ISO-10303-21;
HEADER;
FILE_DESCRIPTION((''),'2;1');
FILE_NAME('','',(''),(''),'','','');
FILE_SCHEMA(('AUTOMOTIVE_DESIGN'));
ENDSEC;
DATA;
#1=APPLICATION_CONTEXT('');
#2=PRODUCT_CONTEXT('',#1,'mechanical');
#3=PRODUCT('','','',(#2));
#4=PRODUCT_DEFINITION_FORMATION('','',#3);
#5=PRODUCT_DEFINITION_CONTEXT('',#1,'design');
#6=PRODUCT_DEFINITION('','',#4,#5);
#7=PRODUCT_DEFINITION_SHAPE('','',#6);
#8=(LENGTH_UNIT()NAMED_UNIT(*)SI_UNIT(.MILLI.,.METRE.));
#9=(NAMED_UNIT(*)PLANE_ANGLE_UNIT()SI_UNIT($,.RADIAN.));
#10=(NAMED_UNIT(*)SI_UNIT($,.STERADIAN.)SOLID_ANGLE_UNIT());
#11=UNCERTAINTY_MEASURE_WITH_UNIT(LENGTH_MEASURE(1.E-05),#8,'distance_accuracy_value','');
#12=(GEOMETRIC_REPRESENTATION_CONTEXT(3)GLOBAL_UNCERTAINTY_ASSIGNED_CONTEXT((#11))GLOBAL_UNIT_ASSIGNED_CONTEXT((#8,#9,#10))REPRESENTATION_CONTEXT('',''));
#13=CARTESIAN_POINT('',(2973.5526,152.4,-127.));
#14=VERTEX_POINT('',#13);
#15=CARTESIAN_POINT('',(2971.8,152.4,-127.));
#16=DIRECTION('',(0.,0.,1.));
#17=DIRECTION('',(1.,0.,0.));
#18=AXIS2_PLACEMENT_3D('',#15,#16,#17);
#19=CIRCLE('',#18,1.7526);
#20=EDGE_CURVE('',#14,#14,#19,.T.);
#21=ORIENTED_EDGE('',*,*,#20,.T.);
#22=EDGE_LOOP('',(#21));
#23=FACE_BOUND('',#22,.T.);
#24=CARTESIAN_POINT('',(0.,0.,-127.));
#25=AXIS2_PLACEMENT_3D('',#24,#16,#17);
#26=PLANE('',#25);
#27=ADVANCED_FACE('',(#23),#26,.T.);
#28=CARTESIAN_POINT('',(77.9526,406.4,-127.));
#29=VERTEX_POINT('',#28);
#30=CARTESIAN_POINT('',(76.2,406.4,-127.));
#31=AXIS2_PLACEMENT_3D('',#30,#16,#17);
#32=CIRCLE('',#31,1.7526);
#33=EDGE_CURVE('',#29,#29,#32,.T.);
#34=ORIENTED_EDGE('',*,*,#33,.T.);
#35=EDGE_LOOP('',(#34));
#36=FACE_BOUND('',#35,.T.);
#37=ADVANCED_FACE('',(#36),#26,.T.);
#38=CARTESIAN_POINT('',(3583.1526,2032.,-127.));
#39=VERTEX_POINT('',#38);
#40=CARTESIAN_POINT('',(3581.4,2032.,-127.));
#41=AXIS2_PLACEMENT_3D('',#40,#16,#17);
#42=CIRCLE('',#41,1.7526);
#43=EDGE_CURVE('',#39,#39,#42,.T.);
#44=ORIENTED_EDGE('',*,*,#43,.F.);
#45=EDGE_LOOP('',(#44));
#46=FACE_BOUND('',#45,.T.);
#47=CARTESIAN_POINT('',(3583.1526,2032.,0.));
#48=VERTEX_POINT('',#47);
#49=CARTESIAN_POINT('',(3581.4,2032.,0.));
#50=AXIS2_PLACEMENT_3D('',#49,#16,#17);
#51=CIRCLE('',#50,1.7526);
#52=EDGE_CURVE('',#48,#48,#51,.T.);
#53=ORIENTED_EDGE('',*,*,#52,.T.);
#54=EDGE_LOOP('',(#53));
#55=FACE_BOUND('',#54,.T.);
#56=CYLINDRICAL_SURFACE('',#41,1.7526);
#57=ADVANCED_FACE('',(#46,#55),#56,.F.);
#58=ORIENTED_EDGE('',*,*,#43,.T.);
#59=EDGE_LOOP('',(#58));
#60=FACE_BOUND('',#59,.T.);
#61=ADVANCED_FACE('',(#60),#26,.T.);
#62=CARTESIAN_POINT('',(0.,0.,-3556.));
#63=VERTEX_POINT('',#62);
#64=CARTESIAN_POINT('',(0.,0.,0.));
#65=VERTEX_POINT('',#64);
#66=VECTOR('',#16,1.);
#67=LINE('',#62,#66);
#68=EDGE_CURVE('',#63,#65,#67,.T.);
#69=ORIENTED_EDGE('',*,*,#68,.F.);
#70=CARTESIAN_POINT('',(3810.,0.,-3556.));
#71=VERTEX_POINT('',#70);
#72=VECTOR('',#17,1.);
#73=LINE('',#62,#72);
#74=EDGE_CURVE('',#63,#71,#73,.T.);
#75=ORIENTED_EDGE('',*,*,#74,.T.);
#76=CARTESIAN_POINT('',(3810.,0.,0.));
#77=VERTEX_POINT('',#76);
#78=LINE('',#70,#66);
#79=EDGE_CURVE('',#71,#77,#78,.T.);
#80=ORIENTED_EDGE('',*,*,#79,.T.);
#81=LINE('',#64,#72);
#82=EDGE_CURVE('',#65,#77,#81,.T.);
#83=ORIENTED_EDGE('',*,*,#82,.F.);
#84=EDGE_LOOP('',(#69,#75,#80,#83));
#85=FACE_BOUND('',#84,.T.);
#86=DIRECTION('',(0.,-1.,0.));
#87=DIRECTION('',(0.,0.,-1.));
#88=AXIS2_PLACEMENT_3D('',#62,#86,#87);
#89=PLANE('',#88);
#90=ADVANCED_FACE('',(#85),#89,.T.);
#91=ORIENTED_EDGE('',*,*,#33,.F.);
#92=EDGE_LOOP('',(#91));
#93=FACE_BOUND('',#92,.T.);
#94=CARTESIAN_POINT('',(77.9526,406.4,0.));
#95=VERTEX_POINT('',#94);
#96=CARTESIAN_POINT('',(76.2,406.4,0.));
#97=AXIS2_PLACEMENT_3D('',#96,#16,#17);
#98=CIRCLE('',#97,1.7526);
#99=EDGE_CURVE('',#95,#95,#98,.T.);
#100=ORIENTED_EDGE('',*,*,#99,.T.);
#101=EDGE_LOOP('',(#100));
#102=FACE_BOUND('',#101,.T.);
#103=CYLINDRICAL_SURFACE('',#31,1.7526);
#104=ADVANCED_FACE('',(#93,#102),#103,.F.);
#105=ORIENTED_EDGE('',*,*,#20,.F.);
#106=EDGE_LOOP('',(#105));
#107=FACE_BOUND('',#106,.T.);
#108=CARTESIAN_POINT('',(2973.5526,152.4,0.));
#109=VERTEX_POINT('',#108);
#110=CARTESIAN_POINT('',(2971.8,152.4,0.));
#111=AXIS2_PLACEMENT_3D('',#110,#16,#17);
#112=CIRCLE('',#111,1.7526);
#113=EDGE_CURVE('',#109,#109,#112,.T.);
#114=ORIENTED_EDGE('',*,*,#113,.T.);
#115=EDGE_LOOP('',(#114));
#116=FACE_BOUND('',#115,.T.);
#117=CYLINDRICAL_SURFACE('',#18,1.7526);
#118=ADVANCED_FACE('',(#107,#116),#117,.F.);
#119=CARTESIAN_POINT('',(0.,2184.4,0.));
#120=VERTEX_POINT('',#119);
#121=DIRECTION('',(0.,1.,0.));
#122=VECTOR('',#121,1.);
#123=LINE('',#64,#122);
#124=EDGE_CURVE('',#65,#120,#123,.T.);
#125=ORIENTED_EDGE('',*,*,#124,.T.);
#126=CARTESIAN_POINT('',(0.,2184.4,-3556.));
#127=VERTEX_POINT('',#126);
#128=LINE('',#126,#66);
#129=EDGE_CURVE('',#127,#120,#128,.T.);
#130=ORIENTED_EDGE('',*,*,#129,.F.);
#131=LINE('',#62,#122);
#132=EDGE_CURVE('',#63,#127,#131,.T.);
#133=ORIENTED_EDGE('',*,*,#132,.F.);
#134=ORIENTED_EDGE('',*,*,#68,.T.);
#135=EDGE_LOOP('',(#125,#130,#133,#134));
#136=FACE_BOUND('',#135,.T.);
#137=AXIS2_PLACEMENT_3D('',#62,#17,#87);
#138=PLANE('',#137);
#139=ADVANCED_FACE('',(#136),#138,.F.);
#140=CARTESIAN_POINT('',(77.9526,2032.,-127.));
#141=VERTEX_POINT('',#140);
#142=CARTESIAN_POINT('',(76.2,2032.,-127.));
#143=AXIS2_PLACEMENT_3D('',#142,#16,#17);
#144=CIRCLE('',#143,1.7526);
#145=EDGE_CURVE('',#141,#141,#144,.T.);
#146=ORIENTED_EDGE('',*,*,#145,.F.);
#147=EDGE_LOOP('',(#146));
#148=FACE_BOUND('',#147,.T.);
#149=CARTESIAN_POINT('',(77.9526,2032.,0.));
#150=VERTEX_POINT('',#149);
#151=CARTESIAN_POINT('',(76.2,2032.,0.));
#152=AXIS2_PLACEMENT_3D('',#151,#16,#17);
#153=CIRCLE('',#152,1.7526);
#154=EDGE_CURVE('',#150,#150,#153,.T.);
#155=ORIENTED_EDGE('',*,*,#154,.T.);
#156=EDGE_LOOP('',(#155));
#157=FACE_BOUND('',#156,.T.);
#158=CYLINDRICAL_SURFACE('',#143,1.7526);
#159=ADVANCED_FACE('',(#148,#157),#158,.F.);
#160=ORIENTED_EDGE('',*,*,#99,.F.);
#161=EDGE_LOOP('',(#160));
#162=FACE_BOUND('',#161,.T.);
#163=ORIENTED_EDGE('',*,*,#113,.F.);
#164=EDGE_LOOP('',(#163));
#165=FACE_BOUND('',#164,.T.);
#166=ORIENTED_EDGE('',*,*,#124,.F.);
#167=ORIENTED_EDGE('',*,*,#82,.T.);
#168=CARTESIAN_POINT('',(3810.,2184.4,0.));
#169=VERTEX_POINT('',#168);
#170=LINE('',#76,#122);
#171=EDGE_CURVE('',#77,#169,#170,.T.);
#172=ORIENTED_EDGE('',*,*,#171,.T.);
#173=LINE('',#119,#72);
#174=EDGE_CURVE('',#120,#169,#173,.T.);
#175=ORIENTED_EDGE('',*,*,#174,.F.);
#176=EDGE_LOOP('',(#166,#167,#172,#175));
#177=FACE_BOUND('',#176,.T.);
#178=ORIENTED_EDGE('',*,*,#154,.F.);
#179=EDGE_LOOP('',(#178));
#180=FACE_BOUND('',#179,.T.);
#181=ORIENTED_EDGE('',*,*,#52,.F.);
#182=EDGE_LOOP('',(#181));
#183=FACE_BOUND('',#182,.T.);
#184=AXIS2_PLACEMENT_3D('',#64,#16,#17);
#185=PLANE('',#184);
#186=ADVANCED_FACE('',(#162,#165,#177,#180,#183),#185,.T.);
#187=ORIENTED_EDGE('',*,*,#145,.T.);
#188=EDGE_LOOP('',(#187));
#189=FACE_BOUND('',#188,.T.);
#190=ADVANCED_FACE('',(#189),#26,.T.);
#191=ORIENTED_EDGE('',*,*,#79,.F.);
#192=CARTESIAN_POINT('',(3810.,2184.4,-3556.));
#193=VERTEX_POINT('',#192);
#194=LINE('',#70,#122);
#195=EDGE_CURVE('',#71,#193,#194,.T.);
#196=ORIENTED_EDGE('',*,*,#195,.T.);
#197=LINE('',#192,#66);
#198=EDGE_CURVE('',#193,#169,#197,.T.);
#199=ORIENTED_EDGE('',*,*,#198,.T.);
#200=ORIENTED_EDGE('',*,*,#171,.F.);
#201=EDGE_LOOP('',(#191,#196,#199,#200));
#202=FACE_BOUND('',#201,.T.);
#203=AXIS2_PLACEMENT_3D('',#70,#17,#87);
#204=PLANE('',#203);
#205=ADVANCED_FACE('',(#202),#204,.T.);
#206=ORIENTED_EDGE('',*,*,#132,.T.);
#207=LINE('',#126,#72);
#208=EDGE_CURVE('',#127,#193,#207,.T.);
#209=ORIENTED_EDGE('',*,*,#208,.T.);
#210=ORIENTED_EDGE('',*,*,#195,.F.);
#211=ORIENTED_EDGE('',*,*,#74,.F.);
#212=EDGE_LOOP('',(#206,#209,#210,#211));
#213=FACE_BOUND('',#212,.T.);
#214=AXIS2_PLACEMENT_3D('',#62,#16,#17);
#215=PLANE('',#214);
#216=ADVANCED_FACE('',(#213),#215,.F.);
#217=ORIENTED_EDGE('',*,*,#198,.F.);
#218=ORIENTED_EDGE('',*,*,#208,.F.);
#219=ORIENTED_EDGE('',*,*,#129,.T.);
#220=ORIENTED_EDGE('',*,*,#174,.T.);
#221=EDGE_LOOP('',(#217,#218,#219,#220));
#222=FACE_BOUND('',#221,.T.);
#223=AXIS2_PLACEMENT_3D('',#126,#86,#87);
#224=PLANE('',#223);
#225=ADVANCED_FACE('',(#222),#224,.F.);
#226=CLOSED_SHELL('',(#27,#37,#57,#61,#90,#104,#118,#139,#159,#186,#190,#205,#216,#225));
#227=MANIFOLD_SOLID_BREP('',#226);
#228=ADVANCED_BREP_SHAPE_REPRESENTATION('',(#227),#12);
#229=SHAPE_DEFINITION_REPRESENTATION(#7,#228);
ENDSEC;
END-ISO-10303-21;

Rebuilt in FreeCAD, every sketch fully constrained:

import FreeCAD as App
import Part
import Sketcher
Q = App.Units.Quantity

doc = App.newDocument("Part")
body = doc.addObject("PartDesign::Body", "Body")

sketch1 = body.newObject("Sketcher::SketchObject", "Sketch")
sketch1.AttachmentSupport = (doc.getObject("XY_Plane"), [""])
sketch1.MapMode = "FlatFace"
sketch1.addGeometry([
    Part.LineSegment(App.Vector(0, 2184, 0), App.Vector(0, 0, 0)),
    Part.LineSegment(App.Vector(0, 0, 0), App.Vector(3810, 0, 0)),
    Part.LineSegment(App.Vector(3810, 0, 0), App.Vector(3810, 2184, 0)),
    Part.LineSegment(App.Vector(3810, 2184, 0), App.Vector(0, 2184, 0)),
], False)
sketch1.addConstraint([
    Sketcher.Constraint("Coincident", 0, 2, 1, 1),
    Sketcher.Constraint("Coincident", 1, 2, 2, 1),
    Sketcher.Constraint("Coincident", 2, 2, 3, 1),
    Sketcher.Constraint("Coincident", 3, 2, 0, 1),
    Sketcher.Constraint("Vertical", 0),
    Sketcher.Constraint("Horizontal", 1),
    Sketcher.Constraint("Vertical", 2),
    Sketcher.Constraint("Horizontal", 3),
    Sketcher.Constraint("Coincident", 0, 2, -1, 1),
    Sketcher.Constraint("DistanceX", 1, 1, 1, 2, Q("150 in")),
    Sketcher.Constraint("DistanceY", 0, 2, 0, 1, Q("86 in")),
])
pad1 = body.newObject("PartDesign::Pad", "Pad")
pad1.Profile = sketch1
pad1.Length = Q("140 in")
pad1.Reversed = True

sketch2 = body.newObject("Sketcher::SketchObject", "Sketch001")
sketch2.AttachmentSupport = (doc.getObject("XY_Plane"), [""])
sketch2.MapMode = "FlatFace"
sketch2.addGeometry([
    Part.Circle(App.Vector(76.2, 2032, 0), App.Vector(0, 0, 1), 1.8),
    Part.Circle(App.Vector(3581.4, 2032, 0), App.Vector(0, 0, 1), 1.8),
    Part.Circle(App.Vector(76.2, 406.4, 0), App.Vector(0, 0, 1), 1.8),
    Part.Circle(App.Vector(2971.8, 152.4, 0), App.Vector(0, 0, 1), 1.8),
], False)
sketch2.addConstraint([
    Sketcher.Constraint("Equal", 0, 1),
    Sketcher.Constraint("Equal", 1, 2),
    Sketcher.Constraint("Equal", 2, 3),
    Sketcher.Constraint("Horizontal", 0, 3, 1, 3),
    Sketcher.Constraint("Vertical", 0, 3, 2, 3),
    Sketcher.Constraint("Diameter", 0, Q("0.138 in")),
    Sketcher.Constraint("DistanceX", -1, 1, 0, 3, Q("3 in")),
    Sketcher.Constraint("DistanceY", -1, 1, 0, 3, Q("80 in")),
    Sketcher.Constraint("DistanceX", -1, 1, 1, 3, Q("141 in")),
    Sketcher.Constraint("DistanceY", -1, 1, 2, 3, Q("16 in")),
    Sketcher.Constraint("DistanceX", -1, 1, 3, 3, Q("117 in")),
    Sketcher.Constraint("DistanceY", -1, 1, 3, 3, Q("6 in")),
])
pocket1 = body.newObject("PartDesign::Pocket", "Pocket")
pocket1.Profile = sketch2
pocket1.Length = Q("5 in")

doc.recompute()
